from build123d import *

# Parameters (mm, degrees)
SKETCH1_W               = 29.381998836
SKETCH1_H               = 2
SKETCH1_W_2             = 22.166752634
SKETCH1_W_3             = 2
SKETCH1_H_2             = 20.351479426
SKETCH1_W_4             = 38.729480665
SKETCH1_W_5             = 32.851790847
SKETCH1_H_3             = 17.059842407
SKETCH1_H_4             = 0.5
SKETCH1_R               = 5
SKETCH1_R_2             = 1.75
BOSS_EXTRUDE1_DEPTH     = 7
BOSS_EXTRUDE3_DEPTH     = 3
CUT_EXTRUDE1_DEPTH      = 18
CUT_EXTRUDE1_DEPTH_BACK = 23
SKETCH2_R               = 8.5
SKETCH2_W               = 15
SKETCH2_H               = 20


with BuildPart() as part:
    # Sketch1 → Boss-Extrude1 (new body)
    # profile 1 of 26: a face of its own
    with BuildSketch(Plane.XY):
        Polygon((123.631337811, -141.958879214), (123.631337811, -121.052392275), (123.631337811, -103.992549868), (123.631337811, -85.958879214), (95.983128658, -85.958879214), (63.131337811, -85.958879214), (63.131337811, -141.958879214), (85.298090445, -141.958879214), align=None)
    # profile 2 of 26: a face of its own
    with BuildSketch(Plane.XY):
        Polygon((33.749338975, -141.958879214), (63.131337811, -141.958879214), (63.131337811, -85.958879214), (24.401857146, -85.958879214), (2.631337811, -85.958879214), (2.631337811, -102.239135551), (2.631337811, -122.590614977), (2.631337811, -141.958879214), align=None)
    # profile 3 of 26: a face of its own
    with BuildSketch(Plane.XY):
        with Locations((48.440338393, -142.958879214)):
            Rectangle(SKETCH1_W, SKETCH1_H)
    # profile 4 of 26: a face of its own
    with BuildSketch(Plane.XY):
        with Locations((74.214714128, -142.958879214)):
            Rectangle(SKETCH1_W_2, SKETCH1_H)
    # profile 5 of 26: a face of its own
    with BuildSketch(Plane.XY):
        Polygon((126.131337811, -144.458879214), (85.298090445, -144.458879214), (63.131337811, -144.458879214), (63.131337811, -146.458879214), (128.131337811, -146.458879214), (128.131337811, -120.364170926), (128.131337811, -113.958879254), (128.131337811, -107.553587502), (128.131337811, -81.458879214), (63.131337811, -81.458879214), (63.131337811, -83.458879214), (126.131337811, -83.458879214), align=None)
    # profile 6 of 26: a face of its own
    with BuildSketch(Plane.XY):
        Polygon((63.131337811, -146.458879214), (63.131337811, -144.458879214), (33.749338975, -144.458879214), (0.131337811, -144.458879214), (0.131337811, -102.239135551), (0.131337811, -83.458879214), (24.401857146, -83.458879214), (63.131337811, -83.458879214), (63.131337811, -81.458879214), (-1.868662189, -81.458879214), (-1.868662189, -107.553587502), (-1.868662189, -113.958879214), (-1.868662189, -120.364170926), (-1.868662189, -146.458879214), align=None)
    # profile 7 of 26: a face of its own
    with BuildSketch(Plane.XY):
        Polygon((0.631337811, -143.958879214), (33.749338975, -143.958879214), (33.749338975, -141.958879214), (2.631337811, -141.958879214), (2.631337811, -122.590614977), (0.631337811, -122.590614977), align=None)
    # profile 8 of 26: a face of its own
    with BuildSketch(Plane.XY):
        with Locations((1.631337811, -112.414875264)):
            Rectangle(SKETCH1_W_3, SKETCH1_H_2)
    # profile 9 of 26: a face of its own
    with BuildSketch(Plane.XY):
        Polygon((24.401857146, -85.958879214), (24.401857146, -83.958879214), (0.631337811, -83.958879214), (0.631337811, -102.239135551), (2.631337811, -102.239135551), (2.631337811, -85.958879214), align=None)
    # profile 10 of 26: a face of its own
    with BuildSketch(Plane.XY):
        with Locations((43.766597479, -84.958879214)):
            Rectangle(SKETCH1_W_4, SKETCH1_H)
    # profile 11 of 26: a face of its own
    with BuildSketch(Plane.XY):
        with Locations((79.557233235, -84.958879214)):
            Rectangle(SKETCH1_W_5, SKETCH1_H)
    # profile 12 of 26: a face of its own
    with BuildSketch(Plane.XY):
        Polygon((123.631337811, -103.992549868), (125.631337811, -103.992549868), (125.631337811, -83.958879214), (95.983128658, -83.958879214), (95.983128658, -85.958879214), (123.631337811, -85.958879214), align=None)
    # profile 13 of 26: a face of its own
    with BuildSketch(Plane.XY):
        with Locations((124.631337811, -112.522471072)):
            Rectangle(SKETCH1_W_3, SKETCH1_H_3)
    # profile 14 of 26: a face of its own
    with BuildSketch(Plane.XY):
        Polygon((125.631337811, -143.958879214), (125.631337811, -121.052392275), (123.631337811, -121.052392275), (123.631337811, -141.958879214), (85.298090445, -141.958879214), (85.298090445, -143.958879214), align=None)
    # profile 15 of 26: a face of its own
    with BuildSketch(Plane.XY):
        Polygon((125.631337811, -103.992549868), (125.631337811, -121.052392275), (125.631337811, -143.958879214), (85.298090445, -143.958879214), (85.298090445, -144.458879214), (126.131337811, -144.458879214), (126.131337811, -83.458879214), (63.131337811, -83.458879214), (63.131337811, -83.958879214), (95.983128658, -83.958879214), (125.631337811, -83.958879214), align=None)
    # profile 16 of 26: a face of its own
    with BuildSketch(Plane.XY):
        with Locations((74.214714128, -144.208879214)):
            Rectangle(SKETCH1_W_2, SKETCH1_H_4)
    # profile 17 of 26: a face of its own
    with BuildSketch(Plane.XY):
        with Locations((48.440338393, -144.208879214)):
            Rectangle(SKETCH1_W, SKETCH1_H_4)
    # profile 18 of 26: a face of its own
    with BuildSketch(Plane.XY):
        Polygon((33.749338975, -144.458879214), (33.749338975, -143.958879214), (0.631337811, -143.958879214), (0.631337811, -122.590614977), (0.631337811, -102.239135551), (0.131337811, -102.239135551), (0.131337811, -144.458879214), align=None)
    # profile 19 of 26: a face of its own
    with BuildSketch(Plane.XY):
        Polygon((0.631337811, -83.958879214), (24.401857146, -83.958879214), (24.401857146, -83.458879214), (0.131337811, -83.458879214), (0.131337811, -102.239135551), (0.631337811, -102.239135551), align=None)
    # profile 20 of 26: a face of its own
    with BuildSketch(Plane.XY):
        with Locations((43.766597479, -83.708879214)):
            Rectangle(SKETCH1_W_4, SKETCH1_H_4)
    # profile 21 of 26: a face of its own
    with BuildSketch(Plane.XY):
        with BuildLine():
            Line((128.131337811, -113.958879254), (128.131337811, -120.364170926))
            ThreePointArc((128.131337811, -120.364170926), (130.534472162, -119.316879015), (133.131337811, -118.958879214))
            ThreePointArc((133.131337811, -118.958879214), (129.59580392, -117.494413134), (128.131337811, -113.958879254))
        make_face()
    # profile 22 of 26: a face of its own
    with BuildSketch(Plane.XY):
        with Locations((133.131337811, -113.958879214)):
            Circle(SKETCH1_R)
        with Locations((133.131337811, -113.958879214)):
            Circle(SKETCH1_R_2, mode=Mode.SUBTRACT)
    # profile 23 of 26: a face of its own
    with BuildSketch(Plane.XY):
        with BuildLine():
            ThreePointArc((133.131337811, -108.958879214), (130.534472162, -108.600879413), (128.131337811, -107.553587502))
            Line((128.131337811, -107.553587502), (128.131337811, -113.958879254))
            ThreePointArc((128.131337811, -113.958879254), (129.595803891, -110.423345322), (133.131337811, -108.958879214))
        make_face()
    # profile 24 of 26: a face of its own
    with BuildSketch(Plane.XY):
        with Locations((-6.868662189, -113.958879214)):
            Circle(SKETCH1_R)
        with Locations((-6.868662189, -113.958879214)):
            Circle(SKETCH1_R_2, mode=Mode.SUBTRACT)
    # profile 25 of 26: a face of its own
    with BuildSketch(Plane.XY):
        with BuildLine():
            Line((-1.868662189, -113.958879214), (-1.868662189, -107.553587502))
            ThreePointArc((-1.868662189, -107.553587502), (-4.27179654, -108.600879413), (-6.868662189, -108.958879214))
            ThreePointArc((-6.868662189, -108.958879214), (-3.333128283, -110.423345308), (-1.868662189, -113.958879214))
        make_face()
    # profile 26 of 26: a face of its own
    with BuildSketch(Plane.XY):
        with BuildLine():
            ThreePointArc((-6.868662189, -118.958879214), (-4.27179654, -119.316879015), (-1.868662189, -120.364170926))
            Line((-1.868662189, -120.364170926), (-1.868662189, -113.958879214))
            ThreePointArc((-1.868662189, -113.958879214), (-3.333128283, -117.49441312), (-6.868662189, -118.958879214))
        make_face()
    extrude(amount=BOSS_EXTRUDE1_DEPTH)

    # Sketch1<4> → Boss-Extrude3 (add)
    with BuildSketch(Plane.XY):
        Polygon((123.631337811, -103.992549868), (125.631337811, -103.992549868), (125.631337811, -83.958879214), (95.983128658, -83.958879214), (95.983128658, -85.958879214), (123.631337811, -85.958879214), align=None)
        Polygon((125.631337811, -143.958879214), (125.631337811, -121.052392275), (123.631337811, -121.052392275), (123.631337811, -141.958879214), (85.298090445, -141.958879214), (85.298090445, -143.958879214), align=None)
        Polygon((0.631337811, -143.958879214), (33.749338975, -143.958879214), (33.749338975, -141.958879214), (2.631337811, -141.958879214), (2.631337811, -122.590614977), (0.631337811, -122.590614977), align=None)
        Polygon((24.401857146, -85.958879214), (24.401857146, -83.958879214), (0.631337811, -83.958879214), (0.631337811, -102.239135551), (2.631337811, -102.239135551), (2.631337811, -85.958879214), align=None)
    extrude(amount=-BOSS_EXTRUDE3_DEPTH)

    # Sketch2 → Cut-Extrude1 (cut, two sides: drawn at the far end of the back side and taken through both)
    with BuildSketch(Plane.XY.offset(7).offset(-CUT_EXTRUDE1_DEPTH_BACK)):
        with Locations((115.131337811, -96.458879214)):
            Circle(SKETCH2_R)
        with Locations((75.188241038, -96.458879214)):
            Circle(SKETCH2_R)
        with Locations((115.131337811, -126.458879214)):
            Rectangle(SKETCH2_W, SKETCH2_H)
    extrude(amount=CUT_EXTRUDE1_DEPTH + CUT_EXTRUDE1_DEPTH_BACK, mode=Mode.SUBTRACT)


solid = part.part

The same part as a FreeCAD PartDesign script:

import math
import FreeCAD as App
import Part
import Sketcher
from FreeCAD import Vector
Q = App.Units.Quantity

doc = App.newDocument("Part")
body = doc.addObject("PartDesign::Body", "Body")

# Sketch on XY plane
sketch1 = body.newObject("Sketcher::SketchObject", "Sketch")
sketch1.AttachmentSupport = (doc.getObject("XY_Plane"), [""])
sketch1.MapMode = "FlatFace"
sketch1.addGeometry([
    Part.LineSegment(Vector(128.1, -81.5, 0), Vector(-1.9, -81.5, 0)),  # 0
    Part.LineSegment(Vector(-1.9, -81.5, 0), Vector(-1.9, -107.6, 0)),  # 1
    Part.ArcOfCircle(Part.Circle(Vector(-6.9, -99.4, 0), Vector(0, 0, 1), 9.6), math.radians(-90), math.radians(-59)),  # 2
    Part.ArcOfCircle(Part.Circle(Vector(-6.9, -114, 0), Vector(0, 0, 1), 5), math.radians(90), math.radians(270)),  # 3
    Part.ArcOfCircle(Part.Circle(Vector(-6.9, -128.6, 0), Vector(0, 0, 1), 9.6), math.radians(59), math.radians(90)),  # 4
    Part.LineSegment(Vector(-1.9, -120.4, 0), Vector(-1.9, -146.5, 0)),  # 5
    Part.LineSegment(Vector(-1.9, -146.5, 0), Vector(128.1, -146.5, 0)),  # 6
    Part.LineSegment(Vector(128.1, -146.5, 0), Vector(128.1, -120.4, 0)),  # 7
    Part.ArcOfCircle(Part.Circle(Vector(133.1, -128.6, 0), Vector(0, 0, 1), 9.6), math.radians(90), math.radians(121)),  # 8
    Part.ArcOfCircle(Part.Circle(Vector(133.1, -114, 0), Vector(0, 0, 1), 5), math.radians(-90), math.radians(90)),  # 9
    Part.ArcOfCircle(Part.Circle(Vector(133.1, -99.4, 0), Vector(0, 0, 1), 9.6), math.radians(-121), math.radians(-90)),  # 10
    Part.LineSegment(Vector(128.1, -107.6, 0), Vector(128.1, -81.5, 0)),  # 11
    Part.Circle(Vector(133.1, -114, 0), Vector(0, 0, 1), 1.8),  # 12
    Part.Circle(Vector(-6.9, -114, 0), Vector(0, 0, 1), 1.8),  # 13
], False)
sketch1.addConstraint([
    Sketcher.Constraint("Coincident", 0, 2, 1, 1),
    Sketcher.Constraint("Coincident", 1, 2, 2, 2),
    Sketcher.Constraint("Tangent", 2, 1, 3, 1),
    Sketcher.Constraint("Tangent", 3, 2, 4, 2),
    Sketcher.Constraint("Coincident", 4, 1, 5, 1),
    Sketcher.Constraint("Coincident", 5, 2, 6, 1),
    Sketcher.Constraint("Coincident", 6, 2, 7, 1),
    Sketcher.Constraint("Coincident", 7, 2, 8, 2),
    Sketcher.Constraint("Tangent", 8, 1, 9, 1),
    Sketcher.Constraint("Tangent", 9, 2, 10, 2),
    Sketcher.Constraint("Coincident", 10, 1, 11, 1),
    Sketcher.Constraint("Coincident", 11, 2, 0, 1),
    Sketcher.Constraint("Horizontal", 0),
    Sketcher.Constraint("Vertical", 1),
    Sketcher.Constraint("Vertical", 5),
    Sketcher.Constraint("Horizontal", 6),
    Sketcher.Constraint("Vertical", 7),
    Sketcher.Constraint("Vertical", 11),
    Sketcher.Constraint("Coincident", 12, 3, 9, 3),
    Sketcher.Constraint("Coincident", 13, 3, 3, 3),
    Sketcher.Constraint("Equal", 2, 4),
    Sketcher.Constraint("Equal", 4, 8),
    Sketcher.Constraint("Equal", 3, 9),
    Sketcher.Constraint("Equal", 8, 10),
    Sketcher.Constraint("Equal", 12, 13),
    Sketcher.Constraint("Horizontal", 4, 3, 8, 3),
    Sketcher.Constraint("Horizontal", 4, 1, 7, 2),
    Sketcher.Constraint("Horizontal", 1, 2, 10, 1),
    Sketcher.Constraint("Vertical", 2, 3, 3, 3),
    Sketcher.Constraint("Vertical", 3, 3, 4, 3),
    Sketcher.Constraint("Vertical", 8, 3, 9, 3),
    Sketcher.Constraint("Vertical", 9, 3, 10, 3),
    Sketcher.Constraint("Vertical", 1, 2, 4, 1),
    Sketcher.Constraint("Equal", 1, 5),
    Sketcher.Constraint("Radius", 3, Q("5 mm")),
    Sketcher.Constraint("Diameter", 12, Q("3.5 mm")),
    Sketcher.Constraint("DistanceX", 0, 2, 0, 1, Q("130 mm")),
    Sketcher.Constraint("DistanceX", 4, 3, 8, 3, Q("140 mm")),
    Sketcher.Constraint("DistanceY", 3, 3, 0, 2, Q("32.5 mm")),
    Sketcher.Constraint("Radius", 2, Q("9.597596 mm")),
    Sketcher.Constraint("DistanceY", 3, 3, -1, 1, Q("113.958879 mm")),
    Sketcher.Constraint("DistanceX", 2, 3, -1, 1, Q("6.868662 mm")),
])
pad1 = body.newObject("PartDesign::Pad", "Pad")
pad1.Profile = sketch1
pad1.Length = 7

# Sketch on XY plane
sketch2 = body.newObject("Sketcher::SketchObject", "Sketch001")
sketch2.AttachmentSupport = (doc.getObject("XY_Plane"), [""])
sketch2.MapMode = "FlatFace"
sketch2.addGeometry([
    Part.LineSegment(Vector(123.6, -104, 0), Vector(125.6, -104, 0)),  # 0
    Part.LineSegment(Vector(125.6, -104, 0), Vector(125.6, -84, 0)),  # 1
    Part.LineSegment(Vector(125.6, -84, 0), Vector(96, -84, 0)),  # 2
    Part.LineSegment(Vector(96, -84, 0), Vector(96, -86, 0)),  # 3
    Part.LineSegment(Vector(96, -86, 0), Vector(123.6, -86, 0)),  # 4
    Part.LineSegment(Vector(123.6, -86, 0), Vector(123.6, -104, 0)),  # 5
    Part.LineSegment(Vector(125.6, -144, 0), Vector(125.6, -121.1, 0)),  # 6
    Part.LineSegment(Vector(125.6, -121.1, 0), Vector(123.6, -121.1, 0)),  # 7
    Part.LineSegment(Vector(123.6, -121.1, 0), Vector(123.6, -142, 0)),  # 8
    Part.LineSegment(Vector(123.6, -142, 0), Vector(85.3, -142, 0)),  # 9
    Part.LineSegment(Vector(85.3, -142, 0), Vector(85.3, -144, 0)),  # 10
    Part.LineSegment(Vector(85.3, -144, 0), Vector(125.6, -144, 0)),  # 11
    Part.LineSegment(Vector(0.6, -144, 0), Vector(33.7, -144, 0)),  # 12
    Part.LineSegment(Vector(33.7, -144, 0), Vector(33.7, -142, 0)),  # 13
    Part.LineSegment(Vector(33.7, -142, 0), Vector(2.6, -142, 0)),  # 14
    Part.LineSegment(Vector(2.6, -142, 0), Vector(2.6, -122.6, 0)),  # 15
    Part.LineSegment(Vector(2.6, -122.6, 0), Vector(0.6, -122.6, 0)),  # 16
    Part.LineSegment(Vector(0.6, -122.6, 0), Vector(0.6, -144, 0)),  # 17
    Part.LineSegment(Vector(24.4, -86, 0), Vector(24.4, -84, 0)),  # 18
    Part.LineSegment(Vector(24.4, -84, 0), Vector(0.6, -84, 0)),  # 19
    Part.LineSegment(Vector(0.6, -84, 0), Vector(0.6, -102.2, 0)),  # 20
    Part.LineSegment(Vector(0.6, -102.2, 0), Vector(2.6, -102.2, 0)),  # 21
    Part.LineSegment(Vector(2.6, -102.2, 0), Vector(2.6, -86, 0)),  # 22
    Part.LineSegment(Vector(2.6, -86, 0), Vector(24.4, -86, 0)),  # 23
], False)
sketch2.addConstraint([
    Sketcher.Constraint("Coincident", 0, 2, 1, 1),
    Sketcher.Constraint("Coincident", 1, 2, 2, 1),
    Sketcher.Constraint("Coincident", 2, 2, 3, 1),
    Sketcher.Constraint("Coincident", 3, 2, 4, 1),
    Sketcher.Constraint("Coincident", 4, 2, 5, 1),
    Sketcher.Constraint("Coincident", 5, 2, 0, 1),
    Sketcher.Constraint("Coincident", 6, 2, 7, 1),
    Sketcher.Constraint("Coincident", 7, 2, 8, 1),
    Sketcher.Constraint("Coincident", 8, 2, 9, 1),
    Sketcher.Constraint("Coincident", 9, 2, 10, 1),
    Sketcher.Constraint("Coincident", 10, 2, 11, 1),
    Sketcher.Constraint("Coincident", 11, 2, 6, 1),
    Sketcher.Constraint("Coincident", 12, 2, 13, 1),
    Sketcher.Constraint("Coincident", 13, 2, 14, 1),
    Sketcher.Constraint("Coincident", 14, 2, 15, 1),
    Sketcher.Constraint("Coincident", 15, 2, 16, 1),
    Sketcher.Constraint("Coincident", 16, 2, 17, 1),
    Sketcher.Constraint("Coincident", 17, 2, 12, 1),
    Sketcher.Constraint("Coincident", 18, 2, 19, 1),
    Sketcher.Constraint("Coincident", 19, 2, 20, 1),
    Sketcher.Constraint("Coincident", 20, 2, 21, 1),
    Sketcher.Constraint("Coincident", 21, 2, 22, 1),
    Sketcher.Constraint("Coincident", 22, 2, 23, 1),
    Sketcher.Constraint("Coincident", 23, 2, 18, 1),
    Sketcher.Constraint("Horizontal", 0),
    Sketcher.Constraint("Vertical", 1),
    Sketcher.Constraint("Horizontal", 2),
    Sketcher.Constraint("Vertical", 3),
    Sketcher.Constraint("Horizontal", 4),
    Sketcher.Constraint("Vertical", 5),
    Sketcher.Constraint("Vertical", 6),
    Sketcher.Constraint("Horizontal", 7),
    Sketcher.Constraint("Vertical", 8),
    Sketcher.Constraint("Horizontal", 9),
    Sketcher.Constraint("Vertical", 10),
    Sketcher.Constraint("Horizontal", 11),
    Sketcher.Constraint("Horizontal", 12),
    Sketcher.Constraint("Vertical", 13),
    Sketcher.Constraint("Horizontal", 14),
    Sketcher.Constraint("Vertical", 15),
    Sketcher.Constraint("Horizontal", 16),
    Sketcher.Constraint("Vertical", 17),
    Sketcher.Constraint("Vertical", 18),
    Sketcher.Constraint("Horizontal", 19),
    Sketcher.Constraint("Vertical", 20),
    Sketcher.Constraint("Horizontal", 21),
    Sketcher.Constraint("Vertical", 22),
    Sketcher.Constraint("Horizontal", 23),
    Sketcher.Constraint("Horizontal", 11, 2, 12, 2),
    Sketcher.Constraint("Horizontal", 9, 2, 13, 2),
    Sketcher.Constraint("Horizontal", 2, 2, 18, 2),
    Sketcher.Constraint("Horizontal", 4, 2, 22, 2),
    Sketcher.Constraint("Vertical", 1, 2, 6, 2),
    Sketcher.Constraint("Vertical", 5, 2, 7, 2),
    Sketcher.Constraint("Vertical", 17, 2, 19, 2),
    Sketcher.Constraint("Vertical", 15, 2, 21, 2),
    Sketcher.Constraint("Equal", 7, 16),
    Sketcher.Constraint("Equal", 21, 3),
    Sketcher.Constraint("Equal", 3, 10),
    Sketcher.Constraint("DistanceX", 0, 1, 0, 2, Q("2 mm")),
    Sketcher.Constraint("DistanceY", 8, 2, 4, 2, Q("56 mm")),
    Sketcher.Constraint("DistanceX", 12, 1, 12, 2, Q("33.118001 mm")),
    Sketcher.Constraint("DistanceX", 12, 2, 8, 2, Q("89.881999 mm")),
    Sketcher.Constraint("DistanceX", 2, 2, 2, 1, Q("29.648209 mm")),
    Sketcher.Constraint("DistanceX", 19, 2, 19, 1, Q("23.770519 mm")),
    Sketcher.Constraint("DistanceY", 1, 1, 1, 2, Q("20.033671 mm")),
    Sketcher.Constraint("DistanceX", 9, 2, 9, 1, Q("38.333247 mm")),
    Sketcher.Constraint("DistanceY", 6, 1, 6, 2, Q("22.906487 mm")),
    Sketcher.Constraint("DistanceY", 15, 1, 15, 2, Q("19.368264 mm")),
    Sketcher.Constraint("DistanceY", 20, 2, 20, 1, Q("18.280256 mm")),
    Sketcher.Constraint("DistanceY", 0, 2, -1, 1, Q("103.99255 mm")),
    Sketcher.Constraint("DistanceX", -1, 1, 2, 2, Q("95.983129 mm")),
])
pad2 = body.newObject("PartDesign::Pad", "Pad001")
pad2.Profile = sketch2
pad2.Length = 3
pad2.Reversed = True

# Sketch on XY plane
sketch3 = body.newObject("Sketcher::SketchObject", "Sketch002")
sketch3.AttachmentSupport = (doc.getObject("XY_Plane"), [""])
sketch3.MapMode = "FlatFace"
sketch3.AttachmentOffset = App.Placement(Vector(0, 0, 7), App.Rotation())
sketch3.addGeometry([
    Part.Circle(Vector(115, -96, 0), Vector(0, 0, 1), 8),  # 0
    Part.Circle(Vector(75, -96, 0), Vector(0, 0, 1), 8),  # 1
    Part.LineSegment(Vector(108, -116, 0), Vector(108, -136, 0)),  # 2
    Part.LineSegment(Vector(108, -136, 0), Vector(123, -136, 0)),  # 3
    Part.LineSegment(Vector(123, -136, 0), Vector(123, -116, 0)),  # 4
    Part.LineSegment(Vector(123, -116, 0), Vector(108, -116, 0)),  # 5
], False)
sketch3.addConstraint([
    Sketcher.Constraint("Coincident", 2, 2, 3, 1),
    Sketcher.Constraint("Coincident", 3, 2, 4, 1),
    Sketcher.Constraint("Coincident", 4, 2, 5, 1),
    Sketcher.Constraint("Coincident", 5, 2, 2, 1),
    Sketcher.Constraint("Vertical", 2),
    Sketcher.Constraint("Horizontal", 3),
    Sketcher.Constraint("Vertical", 4),
    Sketcher.Constraint("Horizontal", 5),
    Sketcher.Constraint("Equal", 0, 1),
    Sketcher.Constraint("Horizontal", 0, 3, 1, 3),
    Sketcher.Constraint("Diameter", 0, Q("17 mm")),
    Sketcher.Constraint("DistanceX", 3, 1, 3, 2, Q("15 mm")),
    Sketcher.Constraint("DistanceY", 2, 2, 2, 1, Q("20 mm")),
    Sketcher.Constraint("DistanceY", 2, 2, 0, 3, Q("40 mm")),
    Sketcher.Constraint("DistanceX", 2, 2, 0, 3, Q("7.5 mm")),
    Sketcher.Constraint("DistanceY", 0, 3, -1, 1, Q("96.458879 mm")),
    Sketcher.Constraint("DistanceX", -1, 1, 1, 3, Q("75.188241 mm")),
    Sketcher.Constraint("DistanceX", -1, 1, 0, 3, Q("115.131338 mm")),
])
pocket1 = body.newObject("PartDesign::Pocket", "Pocket")
pocket1.Profile = sketch3
pocket1.Type = "ThroughAll"
pocket1.Midplane = True

doc.recompute()
